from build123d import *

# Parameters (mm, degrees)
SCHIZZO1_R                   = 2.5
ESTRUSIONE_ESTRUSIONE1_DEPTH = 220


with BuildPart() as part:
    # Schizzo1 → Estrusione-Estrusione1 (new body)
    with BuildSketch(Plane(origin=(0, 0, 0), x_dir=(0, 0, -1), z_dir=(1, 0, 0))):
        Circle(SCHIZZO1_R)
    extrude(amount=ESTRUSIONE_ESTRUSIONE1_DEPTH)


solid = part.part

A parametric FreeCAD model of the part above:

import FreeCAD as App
import Part
import Sketcher
Q = App.Units.Quantity

doc = App.newDocument("Part")
body = doc.addObject("PartDesign::Body", "Body")

# Sketch on YZ plane
sketch1 = body.newObject("Sketcher::SketchObject", "Sketch")
sketch1.AttachmentSupport = (doc.getObject("YZ_Plane"), [""])
sketch1.MapMode = "FlatFace"
sketch1.addGeometry(Part.Circle(App.Vector(0, 0, 0), App.Vector(0, 0, 1), 2.5), False)
sketch1.addConstraint([
    Sketcher.Constraint("Coincident", 0, 3, -1, 1),
    Sketcher.Constraint("Diameter", 0, Q("5 mm")),
])
pad1 = body.newObject("PartDesign::Pad", "Pad")
pad1.Profile = sketch1
pad1.Length = 220

doc.recompute()
